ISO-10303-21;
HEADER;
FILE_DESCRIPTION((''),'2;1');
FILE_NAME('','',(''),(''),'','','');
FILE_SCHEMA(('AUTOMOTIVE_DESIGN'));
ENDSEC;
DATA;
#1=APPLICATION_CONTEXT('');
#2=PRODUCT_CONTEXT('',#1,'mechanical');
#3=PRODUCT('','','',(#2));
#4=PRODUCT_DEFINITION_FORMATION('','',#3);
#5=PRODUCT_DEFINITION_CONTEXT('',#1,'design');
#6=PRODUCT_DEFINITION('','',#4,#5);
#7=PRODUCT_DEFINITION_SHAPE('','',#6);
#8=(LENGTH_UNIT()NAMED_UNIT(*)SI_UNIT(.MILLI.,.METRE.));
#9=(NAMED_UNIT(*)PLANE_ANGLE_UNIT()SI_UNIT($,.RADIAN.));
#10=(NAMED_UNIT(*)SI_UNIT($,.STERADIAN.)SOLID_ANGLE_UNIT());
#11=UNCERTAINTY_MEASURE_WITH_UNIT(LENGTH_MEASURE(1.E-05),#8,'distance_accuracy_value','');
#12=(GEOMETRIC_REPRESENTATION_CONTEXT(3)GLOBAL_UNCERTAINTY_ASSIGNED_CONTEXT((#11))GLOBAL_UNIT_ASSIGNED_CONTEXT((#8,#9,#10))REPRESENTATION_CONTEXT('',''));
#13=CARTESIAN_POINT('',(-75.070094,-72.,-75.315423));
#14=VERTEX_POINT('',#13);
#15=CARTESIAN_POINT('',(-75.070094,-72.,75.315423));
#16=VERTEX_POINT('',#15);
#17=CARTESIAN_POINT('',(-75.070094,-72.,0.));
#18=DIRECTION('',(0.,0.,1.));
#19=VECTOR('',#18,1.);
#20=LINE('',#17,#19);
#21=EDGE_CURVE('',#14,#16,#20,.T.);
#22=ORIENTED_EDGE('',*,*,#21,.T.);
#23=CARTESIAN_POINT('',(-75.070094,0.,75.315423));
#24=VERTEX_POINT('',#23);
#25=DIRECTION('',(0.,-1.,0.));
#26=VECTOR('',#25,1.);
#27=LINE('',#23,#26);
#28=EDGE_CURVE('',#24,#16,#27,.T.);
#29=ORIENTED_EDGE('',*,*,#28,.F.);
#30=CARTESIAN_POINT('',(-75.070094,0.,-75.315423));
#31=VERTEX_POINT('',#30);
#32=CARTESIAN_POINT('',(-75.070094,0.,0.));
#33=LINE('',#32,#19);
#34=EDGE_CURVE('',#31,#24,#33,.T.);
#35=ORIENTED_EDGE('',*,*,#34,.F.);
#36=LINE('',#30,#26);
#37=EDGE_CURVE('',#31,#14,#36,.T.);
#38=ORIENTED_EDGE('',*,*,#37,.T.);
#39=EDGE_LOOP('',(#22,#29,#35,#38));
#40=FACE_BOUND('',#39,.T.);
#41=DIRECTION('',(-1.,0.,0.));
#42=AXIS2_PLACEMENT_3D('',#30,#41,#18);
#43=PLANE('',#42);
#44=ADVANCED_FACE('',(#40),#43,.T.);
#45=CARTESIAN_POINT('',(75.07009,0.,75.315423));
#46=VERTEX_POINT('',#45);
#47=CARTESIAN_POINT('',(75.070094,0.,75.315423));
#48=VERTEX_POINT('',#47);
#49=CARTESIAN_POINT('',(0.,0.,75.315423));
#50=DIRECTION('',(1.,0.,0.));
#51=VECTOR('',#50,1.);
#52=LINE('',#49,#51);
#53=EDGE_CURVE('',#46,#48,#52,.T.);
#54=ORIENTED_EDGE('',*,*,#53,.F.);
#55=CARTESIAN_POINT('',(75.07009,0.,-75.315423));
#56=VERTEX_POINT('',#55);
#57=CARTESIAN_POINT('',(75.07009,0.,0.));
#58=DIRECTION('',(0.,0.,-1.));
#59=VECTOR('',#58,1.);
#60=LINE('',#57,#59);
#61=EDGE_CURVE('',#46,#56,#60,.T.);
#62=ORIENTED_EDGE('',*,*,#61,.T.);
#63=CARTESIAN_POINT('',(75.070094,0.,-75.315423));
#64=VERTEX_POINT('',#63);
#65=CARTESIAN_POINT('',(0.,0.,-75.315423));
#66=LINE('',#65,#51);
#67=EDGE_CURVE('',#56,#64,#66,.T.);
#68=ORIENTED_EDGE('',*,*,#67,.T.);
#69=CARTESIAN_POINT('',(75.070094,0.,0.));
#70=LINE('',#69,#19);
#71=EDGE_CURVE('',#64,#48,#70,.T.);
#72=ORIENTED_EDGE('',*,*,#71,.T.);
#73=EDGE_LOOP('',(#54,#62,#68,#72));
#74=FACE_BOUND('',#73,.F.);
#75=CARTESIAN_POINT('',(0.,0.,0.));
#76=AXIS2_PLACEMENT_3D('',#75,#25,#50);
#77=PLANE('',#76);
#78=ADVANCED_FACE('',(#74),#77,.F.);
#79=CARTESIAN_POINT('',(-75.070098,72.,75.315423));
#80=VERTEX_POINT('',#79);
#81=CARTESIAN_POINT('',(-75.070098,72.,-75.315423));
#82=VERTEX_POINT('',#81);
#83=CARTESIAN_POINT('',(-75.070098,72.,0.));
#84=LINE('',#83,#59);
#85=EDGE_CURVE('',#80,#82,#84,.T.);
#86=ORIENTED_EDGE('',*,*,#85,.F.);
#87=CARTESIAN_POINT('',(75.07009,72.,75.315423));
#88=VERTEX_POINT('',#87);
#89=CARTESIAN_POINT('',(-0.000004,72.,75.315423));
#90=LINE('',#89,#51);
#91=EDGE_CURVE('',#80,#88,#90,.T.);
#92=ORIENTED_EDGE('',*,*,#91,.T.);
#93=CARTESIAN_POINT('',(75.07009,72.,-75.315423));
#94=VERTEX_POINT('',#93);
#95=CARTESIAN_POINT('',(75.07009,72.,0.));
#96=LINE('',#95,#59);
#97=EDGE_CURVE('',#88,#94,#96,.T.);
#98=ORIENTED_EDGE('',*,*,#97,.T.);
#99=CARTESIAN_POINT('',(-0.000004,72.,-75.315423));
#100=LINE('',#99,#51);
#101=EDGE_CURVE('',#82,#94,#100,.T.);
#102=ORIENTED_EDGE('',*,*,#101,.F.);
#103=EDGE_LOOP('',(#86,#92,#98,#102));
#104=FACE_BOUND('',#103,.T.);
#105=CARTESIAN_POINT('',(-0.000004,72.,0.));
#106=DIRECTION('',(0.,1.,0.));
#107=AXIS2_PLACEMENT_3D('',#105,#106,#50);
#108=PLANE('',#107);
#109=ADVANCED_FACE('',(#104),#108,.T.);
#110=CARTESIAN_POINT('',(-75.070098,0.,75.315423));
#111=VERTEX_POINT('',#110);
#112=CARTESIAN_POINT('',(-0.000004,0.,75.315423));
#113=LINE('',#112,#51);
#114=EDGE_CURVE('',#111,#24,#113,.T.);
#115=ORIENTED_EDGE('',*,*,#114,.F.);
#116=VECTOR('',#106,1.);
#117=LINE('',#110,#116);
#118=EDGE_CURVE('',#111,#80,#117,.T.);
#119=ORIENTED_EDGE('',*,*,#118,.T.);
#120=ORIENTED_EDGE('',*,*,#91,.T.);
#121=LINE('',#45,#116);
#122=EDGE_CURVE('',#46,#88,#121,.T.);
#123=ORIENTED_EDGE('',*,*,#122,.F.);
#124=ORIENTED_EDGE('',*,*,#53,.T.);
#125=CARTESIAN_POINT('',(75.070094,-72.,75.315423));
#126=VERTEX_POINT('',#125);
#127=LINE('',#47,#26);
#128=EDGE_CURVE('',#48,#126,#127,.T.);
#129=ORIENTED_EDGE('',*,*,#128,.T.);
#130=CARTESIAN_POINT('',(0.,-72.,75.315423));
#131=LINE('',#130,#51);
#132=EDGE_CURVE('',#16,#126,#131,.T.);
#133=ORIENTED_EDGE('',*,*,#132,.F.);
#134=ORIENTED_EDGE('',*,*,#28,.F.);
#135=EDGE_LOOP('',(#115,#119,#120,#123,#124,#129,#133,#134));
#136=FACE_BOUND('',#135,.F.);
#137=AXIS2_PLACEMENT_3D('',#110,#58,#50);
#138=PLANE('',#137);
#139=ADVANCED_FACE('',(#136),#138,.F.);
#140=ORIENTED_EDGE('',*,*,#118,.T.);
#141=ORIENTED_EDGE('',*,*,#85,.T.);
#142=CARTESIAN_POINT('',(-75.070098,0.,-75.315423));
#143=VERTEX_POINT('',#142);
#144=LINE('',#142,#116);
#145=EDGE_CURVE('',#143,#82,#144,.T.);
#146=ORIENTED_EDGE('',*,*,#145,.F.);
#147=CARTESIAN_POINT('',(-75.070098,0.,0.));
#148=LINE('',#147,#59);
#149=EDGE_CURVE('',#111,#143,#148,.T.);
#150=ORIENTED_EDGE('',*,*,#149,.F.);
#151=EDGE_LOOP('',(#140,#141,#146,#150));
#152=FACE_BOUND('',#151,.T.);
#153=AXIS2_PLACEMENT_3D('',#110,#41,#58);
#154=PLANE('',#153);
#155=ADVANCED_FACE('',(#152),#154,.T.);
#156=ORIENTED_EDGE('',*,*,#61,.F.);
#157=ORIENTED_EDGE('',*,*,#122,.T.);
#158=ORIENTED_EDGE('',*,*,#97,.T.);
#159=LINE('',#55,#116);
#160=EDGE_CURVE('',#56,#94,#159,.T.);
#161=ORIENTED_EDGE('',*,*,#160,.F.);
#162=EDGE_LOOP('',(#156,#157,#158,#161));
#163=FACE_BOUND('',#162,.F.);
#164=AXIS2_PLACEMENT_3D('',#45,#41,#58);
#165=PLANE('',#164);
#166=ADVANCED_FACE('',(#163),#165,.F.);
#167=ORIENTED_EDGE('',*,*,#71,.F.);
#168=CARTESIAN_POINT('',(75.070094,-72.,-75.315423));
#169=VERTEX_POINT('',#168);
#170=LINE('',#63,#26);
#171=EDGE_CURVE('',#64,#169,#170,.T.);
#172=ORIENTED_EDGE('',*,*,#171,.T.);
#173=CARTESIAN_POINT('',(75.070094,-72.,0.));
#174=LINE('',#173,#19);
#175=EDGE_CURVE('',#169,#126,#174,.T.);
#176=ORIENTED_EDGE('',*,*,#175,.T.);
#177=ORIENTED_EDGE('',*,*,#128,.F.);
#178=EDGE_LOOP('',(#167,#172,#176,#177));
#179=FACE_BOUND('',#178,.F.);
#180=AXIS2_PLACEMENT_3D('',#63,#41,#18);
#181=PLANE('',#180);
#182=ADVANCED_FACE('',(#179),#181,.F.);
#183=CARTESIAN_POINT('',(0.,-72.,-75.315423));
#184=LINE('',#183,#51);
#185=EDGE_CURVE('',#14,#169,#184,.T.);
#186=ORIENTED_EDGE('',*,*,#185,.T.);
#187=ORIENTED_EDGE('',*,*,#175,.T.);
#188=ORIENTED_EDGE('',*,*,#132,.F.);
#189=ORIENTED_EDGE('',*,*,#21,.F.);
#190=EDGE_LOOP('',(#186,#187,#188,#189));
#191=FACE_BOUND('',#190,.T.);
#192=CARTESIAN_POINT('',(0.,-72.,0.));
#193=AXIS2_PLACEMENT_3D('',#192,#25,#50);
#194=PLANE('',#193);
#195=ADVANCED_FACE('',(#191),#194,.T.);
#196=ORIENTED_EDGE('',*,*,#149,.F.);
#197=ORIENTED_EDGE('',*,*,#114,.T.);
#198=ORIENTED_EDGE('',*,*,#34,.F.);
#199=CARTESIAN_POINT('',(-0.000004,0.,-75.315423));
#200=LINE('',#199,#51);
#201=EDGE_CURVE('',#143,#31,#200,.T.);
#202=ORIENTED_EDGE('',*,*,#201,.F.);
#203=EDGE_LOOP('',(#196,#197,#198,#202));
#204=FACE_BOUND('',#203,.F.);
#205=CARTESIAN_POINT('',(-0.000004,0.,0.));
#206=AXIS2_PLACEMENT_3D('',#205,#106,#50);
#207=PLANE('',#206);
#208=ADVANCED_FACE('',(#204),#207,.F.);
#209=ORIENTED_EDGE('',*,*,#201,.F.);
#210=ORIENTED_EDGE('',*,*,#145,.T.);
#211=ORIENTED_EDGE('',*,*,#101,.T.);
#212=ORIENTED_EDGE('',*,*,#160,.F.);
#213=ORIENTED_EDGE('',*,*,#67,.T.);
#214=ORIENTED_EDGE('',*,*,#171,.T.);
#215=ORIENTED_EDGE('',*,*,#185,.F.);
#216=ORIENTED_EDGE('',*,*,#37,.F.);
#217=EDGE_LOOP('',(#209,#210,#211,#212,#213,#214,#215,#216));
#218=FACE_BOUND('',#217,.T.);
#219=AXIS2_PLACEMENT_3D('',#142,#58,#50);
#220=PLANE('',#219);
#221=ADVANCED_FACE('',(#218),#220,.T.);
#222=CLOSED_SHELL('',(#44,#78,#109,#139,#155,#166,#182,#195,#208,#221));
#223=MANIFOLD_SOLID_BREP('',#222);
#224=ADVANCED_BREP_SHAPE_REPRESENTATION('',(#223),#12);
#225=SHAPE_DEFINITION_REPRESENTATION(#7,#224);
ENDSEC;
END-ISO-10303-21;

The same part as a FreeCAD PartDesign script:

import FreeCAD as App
import Part
import Sketcher

V = App.Vector
Q = App.Units.Quantity


def add_polygon(sketch, points):
    """Adds a closed chain of lines whose ends are joined by coincident constraints."""
    first, n = sketch.GeometryCount, len(points)
    for a, b in zip(points, points[1:] + points[:1]):
        sketch.addGeometry(Part.LineSegment(App.Vector(*a, 0), App.Vector(*b, 0)), False)
    for i in range(n):
        sketch.addConstraint(Sketcher.Constraint("Coincident", first + i, 2, first + (i + 1) % n, 1))

doc = App.newDocument("Part")
body = doc.addObject("PartDesign::Body", "Body")

# Sketch on XZ plane
sketch1 = body.newObject("Sketcher::SketchObject", "Sketch")
sketch1.AttachmentSupport = (doc.getObject("XZ_Plane"), [""])
sketch1.MapMode = "FlatFace"
add_polygon(sketch1, [(-6, -56), (-6, -75), (6, -75), (6, -56)])  # lines 0-3
sketch1.addConstraint(Sketcher.Constraint("Vertical", 0))
sketch1.addConstraint(Sketcher.Constraint("Horizontal", 1))
sketch1.addConstraint(Sketcher.Constraint("Vertical", 2))
sketch1.addConstraint(Sketcher.Constraint("Horizontal", 3))
sketch1.addConstraint(Sketcher.Constraint("DistanceY", 0, 2, 0, 1, Q("19.135508 mm")))
sketch1.addConstraint(Sketcher.Constraint("DistanceX", 1, 1, 1, 2, Q("11.530376 mm")))
sketch1.addConstraint(Sketcher.Constraint("DistanceX", 0, 2, -1, 1, Q("5.887852 mm")))
sketch1.addConstraint(Sketcher.Constraint("DistanceY", 0, 2, -1, 1, Q("74.824765 mm")))
pad1 = body.newObject("PartDesign::Pad", "Pad")
pad1.Profile = sketch1
pad1.Length = 25

# Sketch on XZ plane
sketch2 = body.newObject("Sketcher::SketchObject", "Sketch001")
sketch2.AttachmentSupport = (doc.getObject("XZ_Plane"), [""])
sketch2.MapMode = "FlatFace"
add_polygon(sketch2, [(-75, 75), (-75, -75), (75, -75), (75, 75)])  # lines 0-3
sketch2.addConstraint(Sketcher.Constraint("Vertical", 0))
sketch2.addConstraint(Sketcher.Constraint("Horizontal", 1))
sketch2.addConstraint(Sketcher.Constraint("Vertical", 2))
sketch2.addConstraint(Sketcher.Constraint("Horizontal", 3))
sketch2.addConstraint(Sketcher.Constraint("Symmetric", 0, 2, 2, 2, -1, 1))
sketch2.addConstraint(Sketcher.Constraint("DistanceX", 1, 1, 1, 2, Q("150.140189 mm")))
sketch2.addConstraint(Sketcher.Constraint("DistanceY", 0, 2, 0, 1, Q("150.630846 mm")))
pad2 = body.newObject("PartDesign::Pad", "Pad001")
pad2.Profile = sketch2
pad2.Length = 72

# Sketch on XZ plane
sketch3 = body.newObject("Sketcher::SketchObject", "Sketch002")
sketch3.AttachmentSupport = (doc.getObject("XZ_Plane"), [""])
sketch3.MapMode = "FlatFace"
add_polygon(sketch3, [(-75, -75), (-75, 75), (75, 75), (75, -75)])  # lines 0-3
sketch3.addConstraint(Sketcher.Constraint("Vertical", 0))
sketch3.addConstraint(Sketcher.Constraint("Horizontal", 1))
sketch3.addConstraint(Sketcher.Constraint("Vertical", 2))
sketch3.addConstraint(Sketcher.Constraint("Horizontal", 3))
sketch3.addConstraint(Sketcher.Constraint("Symmetric", 0, 2, 2, 2, -1, 1))
sketch3.addConstraint(Sketcher.Constraint("DistanceX", 1, 1, 1, 2, Q("150.140188 mm")))
sketch3.addConstraint(Sketcher.Constraint("DistanceY", 0, 1, 0, 2, Q("150.630846 mm")))
pad3 = body.newObject("PartDesign::Pad", "Pad002")
pad3.Profile = sketch3
pad3.Length = 72
pad3.Reversed = True

doc.recompute()
